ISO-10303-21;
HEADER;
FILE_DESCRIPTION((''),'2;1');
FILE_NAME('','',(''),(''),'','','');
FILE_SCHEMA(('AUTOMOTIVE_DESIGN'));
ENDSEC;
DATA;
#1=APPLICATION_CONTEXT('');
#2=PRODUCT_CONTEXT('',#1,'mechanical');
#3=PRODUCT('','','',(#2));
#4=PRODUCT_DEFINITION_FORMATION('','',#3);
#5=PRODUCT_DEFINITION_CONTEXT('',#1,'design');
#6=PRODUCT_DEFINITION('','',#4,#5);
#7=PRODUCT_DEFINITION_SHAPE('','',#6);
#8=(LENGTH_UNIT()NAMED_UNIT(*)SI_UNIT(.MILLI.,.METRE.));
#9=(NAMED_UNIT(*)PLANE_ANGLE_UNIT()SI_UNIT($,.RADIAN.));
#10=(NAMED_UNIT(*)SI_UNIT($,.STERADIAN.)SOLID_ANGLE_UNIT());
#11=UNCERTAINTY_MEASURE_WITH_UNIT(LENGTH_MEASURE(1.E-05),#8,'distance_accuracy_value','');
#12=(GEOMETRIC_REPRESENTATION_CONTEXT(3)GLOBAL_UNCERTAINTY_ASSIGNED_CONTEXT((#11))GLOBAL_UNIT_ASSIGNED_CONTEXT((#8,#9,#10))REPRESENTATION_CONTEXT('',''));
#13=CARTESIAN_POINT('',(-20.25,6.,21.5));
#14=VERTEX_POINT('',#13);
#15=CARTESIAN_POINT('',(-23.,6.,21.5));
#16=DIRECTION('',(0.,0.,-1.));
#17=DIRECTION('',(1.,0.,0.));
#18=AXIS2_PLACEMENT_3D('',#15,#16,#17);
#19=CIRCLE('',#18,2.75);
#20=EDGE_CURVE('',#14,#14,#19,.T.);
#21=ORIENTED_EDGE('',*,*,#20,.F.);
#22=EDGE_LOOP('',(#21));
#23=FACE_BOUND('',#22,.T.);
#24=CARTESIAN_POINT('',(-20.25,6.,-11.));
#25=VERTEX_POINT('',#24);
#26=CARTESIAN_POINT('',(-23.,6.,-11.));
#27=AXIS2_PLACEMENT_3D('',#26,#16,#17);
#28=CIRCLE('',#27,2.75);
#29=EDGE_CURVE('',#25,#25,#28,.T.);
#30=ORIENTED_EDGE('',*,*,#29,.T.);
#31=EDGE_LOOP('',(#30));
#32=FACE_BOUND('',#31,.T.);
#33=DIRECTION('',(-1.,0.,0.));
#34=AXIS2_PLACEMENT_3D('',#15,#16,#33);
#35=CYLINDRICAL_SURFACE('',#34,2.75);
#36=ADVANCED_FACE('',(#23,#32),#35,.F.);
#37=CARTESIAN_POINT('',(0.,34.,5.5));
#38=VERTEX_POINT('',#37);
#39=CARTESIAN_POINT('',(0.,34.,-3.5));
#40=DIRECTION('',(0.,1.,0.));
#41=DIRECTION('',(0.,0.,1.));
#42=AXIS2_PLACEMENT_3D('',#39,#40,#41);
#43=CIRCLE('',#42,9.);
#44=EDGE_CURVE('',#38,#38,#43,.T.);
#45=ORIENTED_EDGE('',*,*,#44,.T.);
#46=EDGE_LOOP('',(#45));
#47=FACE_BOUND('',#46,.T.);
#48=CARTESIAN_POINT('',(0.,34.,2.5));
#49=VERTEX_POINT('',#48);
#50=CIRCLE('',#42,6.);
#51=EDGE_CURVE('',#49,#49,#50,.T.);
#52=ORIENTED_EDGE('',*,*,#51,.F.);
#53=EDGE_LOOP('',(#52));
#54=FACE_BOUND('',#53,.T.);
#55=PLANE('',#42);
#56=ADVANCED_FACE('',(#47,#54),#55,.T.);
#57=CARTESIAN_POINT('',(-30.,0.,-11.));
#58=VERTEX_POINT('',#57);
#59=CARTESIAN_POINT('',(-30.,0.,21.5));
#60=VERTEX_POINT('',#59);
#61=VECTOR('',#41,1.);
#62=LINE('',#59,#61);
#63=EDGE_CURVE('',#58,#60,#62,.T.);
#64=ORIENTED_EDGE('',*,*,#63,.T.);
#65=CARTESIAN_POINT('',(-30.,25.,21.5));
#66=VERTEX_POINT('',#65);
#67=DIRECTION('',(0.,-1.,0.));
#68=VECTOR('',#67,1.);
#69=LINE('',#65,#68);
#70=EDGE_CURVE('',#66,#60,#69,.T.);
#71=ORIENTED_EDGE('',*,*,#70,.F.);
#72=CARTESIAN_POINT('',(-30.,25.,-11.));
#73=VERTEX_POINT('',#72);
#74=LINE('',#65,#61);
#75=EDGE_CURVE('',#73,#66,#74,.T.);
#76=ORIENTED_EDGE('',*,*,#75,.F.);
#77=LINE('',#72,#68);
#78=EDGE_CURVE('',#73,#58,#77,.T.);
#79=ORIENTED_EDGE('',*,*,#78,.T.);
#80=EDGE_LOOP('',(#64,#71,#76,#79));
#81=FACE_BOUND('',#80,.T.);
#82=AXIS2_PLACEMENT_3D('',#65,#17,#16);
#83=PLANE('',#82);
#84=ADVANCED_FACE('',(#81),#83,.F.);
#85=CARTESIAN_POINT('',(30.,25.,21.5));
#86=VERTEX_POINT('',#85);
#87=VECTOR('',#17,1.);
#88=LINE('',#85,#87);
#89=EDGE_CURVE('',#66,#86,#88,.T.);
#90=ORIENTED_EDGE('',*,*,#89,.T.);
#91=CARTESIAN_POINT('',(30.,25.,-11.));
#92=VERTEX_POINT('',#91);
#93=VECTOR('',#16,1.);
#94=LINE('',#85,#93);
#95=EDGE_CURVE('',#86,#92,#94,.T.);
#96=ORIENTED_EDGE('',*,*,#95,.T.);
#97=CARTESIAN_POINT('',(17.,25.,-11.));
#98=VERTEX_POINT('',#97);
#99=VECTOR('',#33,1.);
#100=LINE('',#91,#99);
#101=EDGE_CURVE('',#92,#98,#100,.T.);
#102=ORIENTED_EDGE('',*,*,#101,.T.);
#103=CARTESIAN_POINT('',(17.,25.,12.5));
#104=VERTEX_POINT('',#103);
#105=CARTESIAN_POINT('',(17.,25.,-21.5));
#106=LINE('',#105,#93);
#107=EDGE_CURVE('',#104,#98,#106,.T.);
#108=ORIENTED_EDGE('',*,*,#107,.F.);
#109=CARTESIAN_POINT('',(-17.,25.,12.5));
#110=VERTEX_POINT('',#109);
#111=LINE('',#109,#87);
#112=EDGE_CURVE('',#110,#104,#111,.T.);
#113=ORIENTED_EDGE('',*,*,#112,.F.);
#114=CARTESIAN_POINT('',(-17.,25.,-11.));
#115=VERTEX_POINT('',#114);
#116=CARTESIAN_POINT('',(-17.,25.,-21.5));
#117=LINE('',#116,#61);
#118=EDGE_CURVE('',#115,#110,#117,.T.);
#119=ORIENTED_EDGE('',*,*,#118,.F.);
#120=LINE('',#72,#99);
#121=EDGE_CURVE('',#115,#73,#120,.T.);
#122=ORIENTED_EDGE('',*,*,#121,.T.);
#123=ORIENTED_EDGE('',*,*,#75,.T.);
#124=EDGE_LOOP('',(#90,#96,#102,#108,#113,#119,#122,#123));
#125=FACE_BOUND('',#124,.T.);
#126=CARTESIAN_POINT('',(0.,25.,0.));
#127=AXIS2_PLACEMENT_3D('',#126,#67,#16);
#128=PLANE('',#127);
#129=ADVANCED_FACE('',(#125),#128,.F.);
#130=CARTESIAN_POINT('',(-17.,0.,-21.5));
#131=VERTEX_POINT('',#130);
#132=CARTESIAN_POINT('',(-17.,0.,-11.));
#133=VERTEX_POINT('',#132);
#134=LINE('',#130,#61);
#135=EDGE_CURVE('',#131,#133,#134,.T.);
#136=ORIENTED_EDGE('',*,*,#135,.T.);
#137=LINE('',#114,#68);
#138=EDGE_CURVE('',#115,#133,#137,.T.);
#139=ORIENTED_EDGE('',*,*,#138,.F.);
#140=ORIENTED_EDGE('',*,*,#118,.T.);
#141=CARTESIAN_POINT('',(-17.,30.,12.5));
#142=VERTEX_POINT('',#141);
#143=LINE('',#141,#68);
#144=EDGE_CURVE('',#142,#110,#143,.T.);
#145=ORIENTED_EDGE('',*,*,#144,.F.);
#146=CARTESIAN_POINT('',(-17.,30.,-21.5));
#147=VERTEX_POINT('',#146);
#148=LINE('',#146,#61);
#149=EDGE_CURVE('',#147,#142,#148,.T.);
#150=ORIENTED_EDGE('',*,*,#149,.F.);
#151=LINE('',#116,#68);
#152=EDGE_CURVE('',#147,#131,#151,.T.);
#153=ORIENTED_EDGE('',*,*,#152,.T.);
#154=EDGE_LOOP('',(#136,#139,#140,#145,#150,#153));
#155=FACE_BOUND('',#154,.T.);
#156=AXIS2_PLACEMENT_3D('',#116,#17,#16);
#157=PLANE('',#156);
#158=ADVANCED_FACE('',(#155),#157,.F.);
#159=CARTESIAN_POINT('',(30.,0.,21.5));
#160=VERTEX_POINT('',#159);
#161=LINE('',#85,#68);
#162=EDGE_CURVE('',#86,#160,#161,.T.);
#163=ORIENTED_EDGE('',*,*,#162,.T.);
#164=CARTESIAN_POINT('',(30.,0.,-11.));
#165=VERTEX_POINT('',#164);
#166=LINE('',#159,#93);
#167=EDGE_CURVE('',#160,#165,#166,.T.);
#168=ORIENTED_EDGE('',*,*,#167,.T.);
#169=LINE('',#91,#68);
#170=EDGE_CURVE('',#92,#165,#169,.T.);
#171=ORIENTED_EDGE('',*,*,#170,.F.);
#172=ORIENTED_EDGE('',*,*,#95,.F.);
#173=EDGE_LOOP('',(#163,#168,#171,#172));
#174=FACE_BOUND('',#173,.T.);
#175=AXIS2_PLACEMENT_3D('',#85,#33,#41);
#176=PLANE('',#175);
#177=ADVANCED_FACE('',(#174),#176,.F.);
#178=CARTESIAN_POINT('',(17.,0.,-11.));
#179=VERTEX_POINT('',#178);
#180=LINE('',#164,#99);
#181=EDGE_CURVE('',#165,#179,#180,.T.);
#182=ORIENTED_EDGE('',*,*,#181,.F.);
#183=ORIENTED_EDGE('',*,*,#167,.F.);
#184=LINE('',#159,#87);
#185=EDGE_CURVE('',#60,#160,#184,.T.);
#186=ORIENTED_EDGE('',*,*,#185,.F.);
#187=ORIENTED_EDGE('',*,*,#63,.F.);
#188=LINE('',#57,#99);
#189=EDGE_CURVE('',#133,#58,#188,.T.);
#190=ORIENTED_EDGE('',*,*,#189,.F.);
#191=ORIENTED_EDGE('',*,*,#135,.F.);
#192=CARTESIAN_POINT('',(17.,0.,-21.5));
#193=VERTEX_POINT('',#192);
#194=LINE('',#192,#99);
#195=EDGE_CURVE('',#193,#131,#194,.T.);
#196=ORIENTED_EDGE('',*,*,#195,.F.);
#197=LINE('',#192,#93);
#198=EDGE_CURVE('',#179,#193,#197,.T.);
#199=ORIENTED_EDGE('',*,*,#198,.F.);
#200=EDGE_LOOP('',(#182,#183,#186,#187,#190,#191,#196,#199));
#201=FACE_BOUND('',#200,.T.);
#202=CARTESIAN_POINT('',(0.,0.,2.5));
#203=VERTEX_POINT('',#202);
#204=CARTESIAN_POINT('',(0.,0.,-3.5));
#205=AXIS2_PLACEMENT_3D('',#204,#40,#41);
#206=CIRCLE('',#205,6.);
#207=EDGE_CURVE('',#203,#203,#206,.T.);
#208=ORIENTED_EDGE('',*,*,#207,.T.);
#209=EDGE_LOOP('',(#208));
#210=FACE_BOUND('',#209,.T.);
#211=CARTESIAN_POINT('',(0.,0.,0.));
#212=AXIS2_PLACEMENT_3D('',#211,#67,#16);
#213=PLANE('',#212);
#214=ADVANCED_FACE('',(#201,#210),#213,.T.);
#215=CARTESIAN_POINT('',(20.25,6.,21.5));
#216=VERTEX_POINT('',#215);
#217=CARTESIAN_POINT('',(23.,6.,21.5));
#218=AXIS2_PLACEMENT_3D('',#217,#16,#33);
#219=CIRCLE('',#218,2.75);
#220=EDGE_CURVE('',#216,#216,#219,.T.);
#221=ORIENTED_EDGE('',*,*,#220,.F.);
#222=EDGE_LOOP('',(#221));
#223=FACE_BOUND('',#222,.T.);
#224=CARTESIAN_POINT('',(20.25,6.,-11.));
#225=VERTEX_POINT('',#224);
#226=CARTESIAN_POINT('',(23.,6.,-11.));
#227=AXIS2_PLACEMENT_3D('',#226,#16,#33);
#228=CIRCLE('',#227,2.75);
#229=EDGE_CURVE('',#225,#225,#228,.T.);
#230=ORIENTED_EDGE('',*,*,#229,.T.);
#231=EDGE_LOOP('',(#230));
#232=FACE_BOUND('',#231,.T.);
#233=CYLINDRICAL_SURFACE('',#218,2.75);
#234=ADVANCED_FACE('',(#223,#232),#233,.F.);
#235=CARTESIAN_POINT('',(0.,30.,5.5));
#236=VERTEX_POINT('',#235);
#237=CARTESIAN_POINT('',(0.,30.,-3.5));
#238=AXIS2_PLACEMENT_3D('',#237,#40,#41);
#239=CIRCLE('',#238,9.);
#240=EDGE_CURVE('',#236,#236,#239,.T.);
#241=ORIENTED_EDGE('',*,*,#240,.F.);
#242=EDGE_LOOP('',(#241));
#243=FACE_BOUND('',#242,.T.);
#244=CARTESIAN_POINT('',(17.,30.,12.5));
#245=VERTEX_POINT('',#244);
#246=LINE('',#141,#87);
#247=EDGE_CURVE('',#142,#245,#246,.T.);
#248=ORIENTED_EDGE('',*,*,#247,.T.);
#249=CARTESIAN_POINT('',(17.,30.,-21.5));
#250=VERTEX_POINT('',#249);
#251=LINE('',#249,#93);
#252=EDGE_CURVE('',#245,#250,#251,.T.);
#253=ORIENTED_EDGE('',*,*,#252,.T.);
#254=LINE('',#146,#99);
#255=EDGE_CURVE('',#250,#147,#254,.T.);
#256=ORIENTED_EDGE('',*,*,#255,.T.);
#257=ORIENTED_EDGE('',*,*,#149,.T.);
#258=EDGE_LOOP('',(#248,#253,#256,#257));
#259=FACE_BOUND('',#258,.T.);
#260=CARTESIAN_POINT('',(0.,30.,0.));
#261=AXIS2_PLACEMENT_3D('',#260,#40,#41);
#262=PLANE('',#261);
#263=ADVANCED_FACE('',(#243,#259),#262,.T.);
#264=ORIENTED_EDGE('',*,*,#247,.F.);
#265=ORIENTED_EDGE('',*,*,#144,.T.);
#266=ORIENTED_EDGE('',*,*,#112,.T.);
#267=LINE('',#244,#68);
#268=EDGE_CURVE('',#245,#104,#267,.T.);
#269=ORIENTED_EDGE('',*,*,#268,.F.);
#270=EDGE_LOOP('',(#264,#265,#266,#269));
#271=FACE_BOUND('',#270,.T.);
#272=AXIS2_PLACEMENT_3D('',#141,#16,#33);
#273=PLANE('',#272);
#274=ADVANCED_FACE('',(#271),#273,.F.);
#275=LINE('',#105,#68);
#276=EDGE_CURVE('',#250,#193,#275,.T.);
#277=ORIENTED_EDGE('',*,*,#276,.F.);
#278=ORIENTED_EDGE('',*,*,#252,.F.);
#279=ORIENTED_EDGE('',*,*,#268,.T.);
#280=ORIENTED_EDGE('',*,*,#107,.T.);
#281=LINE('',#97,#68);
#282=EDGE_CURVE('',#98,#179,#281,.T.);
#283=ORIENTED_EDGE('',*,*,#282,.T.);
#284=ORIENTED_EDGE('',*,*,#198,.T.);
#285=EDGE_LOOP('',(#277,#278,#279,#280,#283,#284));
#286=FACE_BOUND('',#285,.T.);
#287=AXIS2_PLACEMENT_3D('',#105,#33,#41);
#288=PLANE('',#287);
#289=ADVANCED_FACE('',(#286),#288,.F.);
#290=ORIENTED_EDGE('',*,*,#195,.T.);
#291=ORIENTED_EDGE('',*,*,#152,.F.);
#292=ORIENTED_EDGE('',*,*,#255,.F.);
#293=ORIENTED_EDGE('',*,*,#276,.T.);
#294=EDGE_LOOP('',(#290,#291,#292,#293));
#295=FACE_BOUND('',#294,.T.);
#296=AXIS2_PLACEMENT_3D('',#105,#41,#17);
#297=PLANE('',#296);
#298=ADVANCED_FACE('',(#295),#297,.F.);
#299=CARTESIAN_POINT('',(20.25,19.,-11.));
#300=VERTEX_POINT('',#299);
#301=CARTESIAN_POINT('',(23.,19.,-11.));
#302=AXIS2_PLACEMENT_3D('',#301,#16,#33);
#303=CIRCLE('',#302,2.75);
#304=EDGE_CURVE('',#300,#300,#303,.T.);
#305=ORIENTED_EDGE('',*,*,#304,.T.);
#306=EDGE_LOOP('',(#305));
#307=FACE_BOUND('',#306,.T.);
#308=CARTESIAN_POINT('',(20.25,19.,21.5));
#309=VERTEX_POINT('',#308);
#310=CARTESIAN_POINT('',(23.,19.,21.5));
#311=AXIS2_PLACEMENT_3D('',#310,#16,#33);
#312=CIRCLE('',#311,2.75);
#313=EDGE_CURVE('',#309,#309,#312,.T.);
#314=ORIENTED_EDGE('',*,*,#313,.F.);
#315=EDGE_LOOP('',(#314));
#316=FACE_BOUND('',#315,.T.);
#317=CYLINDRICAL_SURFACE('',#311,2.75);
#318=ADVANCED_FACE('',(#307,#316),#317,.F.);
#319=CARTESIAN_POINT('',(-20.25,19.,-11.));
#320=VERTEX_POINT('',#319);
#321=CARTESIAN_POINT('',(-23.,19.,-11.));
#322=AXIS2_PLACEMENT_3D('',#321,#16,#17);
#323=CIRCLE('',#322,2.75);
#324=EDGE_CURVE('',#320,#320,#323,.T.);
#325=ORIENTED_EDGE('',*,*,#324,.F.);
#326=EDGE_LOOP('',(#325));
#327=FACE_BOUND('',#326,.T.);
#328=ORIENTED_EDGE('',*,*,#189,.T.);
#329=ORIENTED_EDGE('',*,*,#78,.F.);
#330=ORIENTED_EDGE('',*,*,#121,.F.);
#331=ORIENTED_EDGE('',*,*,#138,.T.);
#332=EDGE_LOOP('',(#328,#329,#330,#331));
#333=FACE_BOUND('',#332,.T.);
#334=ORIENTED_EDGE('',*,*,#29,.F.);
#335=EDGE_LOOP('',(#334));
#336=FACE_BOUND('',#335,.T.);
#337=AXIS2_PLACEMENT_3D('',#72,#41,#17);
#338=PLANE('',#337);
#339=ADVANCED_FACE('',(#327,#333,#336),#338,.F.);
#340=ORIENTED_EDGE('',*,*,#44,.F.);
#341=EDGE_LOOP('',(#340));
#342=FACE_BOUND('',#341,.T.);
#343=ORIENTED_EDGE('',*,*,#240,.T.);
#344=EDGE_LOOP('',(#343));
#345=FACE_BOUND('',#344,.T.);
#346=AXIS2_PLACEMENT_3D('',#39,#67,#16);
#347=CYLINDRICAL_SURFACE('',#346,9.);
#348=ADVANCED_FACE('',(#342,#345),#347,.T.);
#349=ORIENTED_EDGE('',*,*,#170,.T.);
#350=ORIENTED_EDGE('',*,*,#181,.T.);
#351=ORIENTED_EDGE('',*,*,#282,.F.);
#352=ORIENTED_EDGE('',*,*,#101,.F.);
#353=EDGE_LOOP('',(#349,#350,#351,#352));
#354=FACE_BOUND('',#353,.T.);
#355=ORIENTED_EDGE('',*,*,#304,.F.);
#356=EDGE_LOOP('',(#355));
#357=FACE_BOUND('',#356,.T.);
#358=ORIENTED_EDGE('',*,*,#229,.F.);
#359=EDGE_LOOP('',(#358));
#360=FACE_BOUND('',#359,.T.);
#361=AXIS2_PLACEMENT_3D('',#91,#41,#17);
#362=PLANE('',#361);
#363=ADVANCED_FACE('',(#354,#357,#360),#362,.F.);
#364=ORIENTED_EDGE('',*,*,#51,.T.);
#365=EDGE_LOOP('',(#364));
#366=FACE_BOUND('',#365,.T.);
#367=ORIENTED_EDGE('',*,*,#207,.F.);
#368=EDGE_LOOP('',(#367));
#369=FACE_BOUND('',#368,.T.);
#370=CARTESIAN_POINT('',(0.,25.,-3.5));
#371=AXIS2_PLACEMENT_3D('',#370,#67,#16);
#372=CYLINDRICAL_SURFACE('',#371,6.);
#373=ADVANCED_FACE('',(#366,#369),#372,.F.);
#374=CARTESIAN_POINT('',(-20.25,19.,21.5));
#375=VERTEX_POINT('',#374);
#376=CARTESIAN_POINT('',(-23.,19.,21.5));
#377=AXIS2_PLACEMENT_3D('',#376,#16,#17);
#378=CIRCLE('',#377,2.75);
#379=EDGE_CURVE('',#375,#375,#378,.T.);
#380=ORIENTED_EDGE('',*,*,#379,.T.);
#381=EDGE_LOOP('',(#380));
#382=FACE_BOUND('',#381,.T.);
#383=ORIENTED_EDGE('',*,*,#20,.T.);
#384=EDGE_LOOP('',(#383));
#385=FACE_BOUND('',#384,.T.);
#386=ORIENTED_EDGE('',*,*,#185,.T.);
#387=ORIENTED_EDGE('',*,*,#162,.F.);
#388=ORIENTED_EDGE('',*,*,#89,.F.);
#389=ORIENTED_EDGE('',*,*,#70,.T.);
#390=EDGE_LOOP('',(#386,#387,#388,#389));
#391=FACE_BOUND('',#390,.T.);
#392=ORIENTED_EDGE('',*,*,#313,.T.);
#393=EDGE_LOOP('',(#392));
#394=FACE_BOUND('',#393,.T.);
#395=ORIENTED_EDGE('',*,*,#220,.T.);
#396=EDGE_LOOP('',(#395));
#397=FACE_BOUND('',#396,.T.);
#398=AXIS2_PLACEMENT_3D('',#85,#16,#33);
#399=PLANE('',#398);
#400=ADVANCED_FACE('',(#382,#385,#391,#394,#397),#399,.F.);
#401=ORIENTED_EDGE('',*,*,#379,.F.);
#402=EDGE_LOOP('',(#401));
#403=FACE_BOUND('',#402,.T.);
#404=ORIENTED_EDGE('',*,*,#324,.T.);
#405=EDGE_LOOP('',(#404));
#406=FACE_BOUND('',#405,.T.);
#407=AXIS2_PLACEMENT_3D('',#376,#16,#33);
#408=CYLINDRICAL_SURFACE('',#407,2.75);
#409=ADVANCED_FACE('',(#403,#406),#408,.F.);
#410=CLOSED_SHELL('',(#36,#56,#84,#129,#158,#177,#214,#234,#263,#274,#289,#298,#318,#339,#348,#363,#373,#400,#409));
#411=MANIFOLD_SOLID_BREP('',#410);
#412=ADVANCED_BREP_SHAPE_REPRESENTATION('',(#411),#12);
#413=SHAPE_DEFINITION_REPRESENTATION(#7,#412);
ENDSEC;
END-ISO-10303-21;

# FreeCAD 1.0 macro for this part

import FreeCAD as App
import Part
import Sketcher

V = App.Vector
Q = App.Units.Quantity


def add_polygon(sketch, points):
    """Adds a closed chain of lines whose ends are joined by coincident constraints."""
    first, n = sketch.GeometryCount, len(points)
    for a, b in zip(points, points[1:] + points[:1]):
        sketch.addGeometry(Part.LineSegment(App.Vector(*a, 0), App.Vector(*b, 0)), False)
    for i in range(n):
        sketch.addConstraint(Sketcher.Constraint("Coincident", first + i, 2, first + (i + 1) % n, 1))

doc = App.newDocument("Part")
body = doc.addObject("PartDesign::Body", "Body")

# Sketch on XZ plane
sketch1 = body.newObject("Sketcher::SketchObject", "Sketch")
sketch1.AttachmentSupport = (doc.getObject("XZ_Plane"), [""])
sketch1.MapMode = "FlatFace"
add_polygon(sketch1, [(-30, 22), (30, 22), (30, -11), (17, -11), (17, -22), (-17, -22), (-17, -11), (-30, -11)])  # lines 0-7
sketch1.addGeometry(Part.Circle(V(0, -4, 0), V(0, 0, 1), 6), False)  # 8
sketch1.addConstraint([
    Sketcher.Constraint("Horizontal", 0),
    Sketcher.Constraint("Vertical", 1),
    Sketcher.Constraint("Horizontal", 2),
    Sketcher.Constraint("Vertical", 3),
    Sketcher.Constraint("Horizontal", 4),
    Sketcher.Constraint("Vertical", 5),
    Sketcher.Constraint("Horizontal", 6),
    Sketcher.Constraint("Vertical", 7),
    Sketcher.Constraint("Symmetric", 2, 2, 5, 2, -2),
    Sketcher.Constraint("PointOnObject", 8, 3, -2),
    Sketcher.Constraint("Equal", 2, 6),
    Sketcher.Constraint("Diameter", 8, Q("12 mm")),
    Sketcher.Constraint("DistanceX", 0, 1, 0, 2, Q("60 mm")),
    Sketcher.Constraint("DistanceX", 2, 2, 2, 1, Q("13 mm")),
    Sketcher.Constraint("DistanceY", 1, 2, 1, 1, Q("32.5 mm")),
    Sketcher.Constraint("DistanceY", 3, 2, 3, 1, Q("10.5 mm")),
    Sketcher.Constraint("DistanceY", 1, 2, -1, 1, Q("11 mm")),
    Sketcher.Constraint("DistanceY", 8, 3, 0, 2, Q("25 mm")),
])
pad1 = body.newObject("PartDesign::Pad", "Pad")
pad1.Profile = sketch1
pad1.Length = 25
pad1.Reversed = True

# Sketch on XY plane
sketch2 = body.newObject("Sketcher::SketchObject", "Sketch001")
sketch2.AttachmentSupport = (doc.getObject("XY_Plane"), [""])
sketch2.MapMode = "FlatFace"
sketch2.AttachmentOffset = App.Placement(V(0, 0, -11), App.Rotation())
sketch2.addGeometry([
    Part.Circle(V(23, 19, 0), V(0, 0, 1), 2.8),
    Part.Circle(V(23, 6, 0), V(0, 0, 1), 2.8),
    Part.Circle(V(-23, 6, 0), V(0, 0, 1), 2.8),
    Part.Circle(V(-23, 19, 0), V(0, 0, 1), 2.8),
], False)
sketch2.addConstraint([
    Sketcher.Constraint("Equal", 0, 1),
    Sketcher.Constraint("Equal", 1, 2),
    Sketcher.Constraint("Equal", 2, 3),
    Sketcher.Constraint("Symmetric", 1, 3, 2, 3, -2),
    Sketcher.Constraint("Symmetric", 0, 3, 3, 3, -2),
    Sketcher.Constraint("Vertical", 0, 3, 1, 3),
    Sketcher.Constraint("Diameter", 0, Q("5.5 mm")),
    Sketcher.Constraint("DistanceX", -1, 1, 0, 3, Q("23 mm")),
    Sketcher.Constraint("DistanceY", -1, 1, 0, 3, Q("19 mm")),
    Sketcher.Constraint("DistanceY", -1, 1, 1, 3, Q("6 mm")),
])
pocket1 = body.newObject("PartDesign::Pocket", "Pocket")
pocket1.Profile = sketch2
pocket1.Type = "ThroughAll"
pocket1.Reversed = True

# Sketch on XZ plane
sketch3 = body.newObject("Sketcher::SketchObject", "Sketch002")
sketch3.AttachmentSupport = (doc.getObject("XZ_Plane"), [""])
sketch3.MapMode = "FlatFace"
sketch3.AttachmentOffset = App.Placement(V(0, 0, -25), App.Rotation())
add_polygon(sketch3, [(-17, -22), (-17, 12), (17, 12), (17, -22)])  # lines 0-3
sketch3.addGeometry(Part.Circle(V(0, -4, 0), V(0, 0, 1), 6), False)  # 4
sketch3.addConstraint([
    Sketcher.Constraint("Vertical", 0),
    Sketcher.Constraint("Horizontal", 1),
    Sketcher.Constraint("Vertical", 2),
    Sketcher.Constraint("Horizontal", 3),
    Sketcher.Constraint("PointOnObject", 4, 3, -2),
    Sketcher.Constraint("Equal", 3, 0),
    Sketcher.Constraint("Diameter", 4, Q("12 mm")),
    Sketcher.Constraint("DistanceX", 1, 1, 1, 2, Q("34 mm")),
    Sketcher.Constraint("DistanceX", 0, 2, -1, 1, Q("17 mm")),
    Sketcher.Constraint("DistanceY", 4, 3, 0, 2, Q("16 mm")),
    Sketcher.Constraint("DistanceY", 4, 3, -1, 1, Q("3.5 mm")),
])
pad2 = body.newObject("PartDesign::Pad", "Pad001")
pad2.Profile = sketch3
pad2.Length = 5
pad2.Reversed = True

# Sketch on XZ plane
sketch4 = body.newObject("Sketcher::SketchObject", "Sketch003")
sketch4.AttachmentSupport = (doc.getObject("XZ_Plane"), [""])
sketch4.MapMode = "FlatFace"
sketch4.AttachmentOffset = App.Placement(V(0, 0, -30), App.Rotation())
sketch4.addGeometry([
    Part.Circle(V(0, -4, 0), V(0, 0, 1), 9),
    Part.Circle(V(0, -4, 0), V(0, 0, 1), 6),
], False)
sketch4.addConstraint([
    Sketcher.Constraint("Coincident", 1, 3, 0, 3),
    Sketcher.Constraint("PointOnObject", 0, 3, -2),
    Sketcher.Constraint("Diameter", 0, Q("18 mm")),
    Sketcher.Constraint("Diameter", 1, Q("12 mm")),
    Sketcher.Constraint("DistanceY", 0, 3, -1, 1, Q("3.5 mm")),
])
pad3 = body.newObject("PartDesign::Pad", "Pad002")
pad3.Profile = sketch4
pad3.Length = 4
pad3.Reversed = True

doc.recompute()
